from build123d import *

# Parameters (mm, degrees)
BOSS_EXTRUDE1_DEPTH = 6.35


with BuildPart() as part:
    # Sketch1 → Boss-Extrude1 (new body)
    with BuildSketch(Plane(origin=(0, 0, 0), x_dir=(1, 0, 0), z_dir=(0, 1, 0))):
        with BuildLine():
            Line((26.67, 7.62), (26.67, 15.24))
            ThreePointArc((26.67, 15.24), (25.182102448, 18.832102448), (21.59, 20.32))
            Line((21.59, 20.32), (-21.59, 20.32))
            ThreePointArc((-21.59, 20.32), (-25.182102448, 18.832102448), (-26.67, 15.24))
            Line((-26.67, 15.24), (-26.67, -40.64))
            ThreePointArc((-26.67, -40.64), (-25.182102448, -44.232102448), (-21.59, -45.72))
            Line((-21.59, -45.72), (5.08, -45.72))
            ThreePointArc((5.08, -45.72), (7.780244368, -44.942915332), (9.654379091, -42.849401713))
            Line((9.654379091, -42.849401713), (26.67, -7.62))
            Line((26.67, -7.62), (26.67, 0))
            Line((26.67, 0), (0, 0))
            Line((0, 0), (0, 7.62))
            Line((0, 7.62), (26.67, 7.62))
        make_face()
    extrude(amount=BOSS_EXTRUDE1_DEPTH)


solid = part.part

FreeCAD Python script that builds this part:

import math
import FreeCAD as App
import Part
import Sketcher

V = App.Vector
Q = App.Units.Quantity

doc = App.newDocument("Part")
params = doc.addObject("Spreadsheet::Sheet", "Params")
for row, (alias, value) in enumerate([
    ("sketch1_radius", "0.2 in"),
    ("sketch1_width", "1.7 in"),
    ("sketch1_height", "0.3 in"),
    ("sketch1_height2", "2.2 in"),
    ("sketch1_width2", "1.05 in"),
    ("pad1_length", "0.25 in"),
], start=1):
    params.set(f"A{row}", alias)
    params.set(f"B{row}", "=" + value)
    params.setAlias(f"B{row}", alias)

body = doc.addObject("PartDesign::Body", "Body")

sketch1 = doc.addObject("Sketcher::SketchObject", "Sketch")
body.addObject(sketch1)
sketch1.AttachmentSupport = (doc.XZ_Plane, [""])
sketch1.MapMode = "FlatFace"
sketch1.addGeometry([
    Part.LineSegment(V(27, -8, 0), V(27, -15, 0)),
    Part.ArcOfCircle(Part.Circle(V(22, -15, 0), V(0, 0, 1), 5), math.radians(-90), math.radians(0)),
    Part.LineSegment(V(22, -20, 0), V(-22, -20, 0)),
    Part.ArcOfCircle(Part.Circle(V(-22, -15, 0), V(0, 0, 1), 5), math.radians(-180), math.radians(-90)),
    Part.LineSegment(V(-27, -15, 0), V(-27, 41, 0)),
    Part.ArcOfCircle(Part.Circle(V(-22, 41, 0), V(0, 0, 1), 5), math.radians(90), math.radians(180)),
    Part.LineSegment(V(-22, 46, 0), V(5, 46, 0)),
    Part.ArcOfCircle(Part.Circle(V(5, 41, 0), V(0, 0, 1), 5), math.radians(26), math.radians(90)),
    Part.LineSegment(V(10, 43, 0), V(27, 8, 0)),
    Part.LineSegment(V(27, 8, 0), V(27, 0, 0)),
    Part.LineSegment(V(27, 0, 0), V(0, 0, 0)),
    Part.LineSegment(V(0, 0, 0), V(0, -8, 0)),
    Part.LineSegment(V(0, -8, 0), V(27, -8, 0)),
], False)
sketch1.addConstraint([
    Sketcher.Constraint("Tangent", 0, 2, 1, 2),
    Sketcher.Constraint("Tangent", 1, 1, 2, 1),
    Sketcher.Constraint("Tangent", 2, 2, 3, 2),
    Sketcher.Constraint("Tangent", 3, 1, 4, 1),
    Sketcher.Constraint("Tangent", 4, 2, 5, 2),
    Sketcher.Constraint("Tangent", 5, 1, 6, 1),
    Sketcher.Constraint("Tangent", 6, 2, 7, 2),
    Sketcher.Constraint("Tangent", 7, 1, 8, 1),
    Sketcher.Constraint("Coincident", 8, 2, 9, 1),
    Sketcher.Constraint("Coincident", 9, 2, 10, 1),
    Sketcher.Constraint("Coincident", 10, 2, 11, 1),
    Sketcher.Constraint("Coincident", 11, 2, 12, 1),
    Sketcher.Constraint("Coincident", 12, 2, 0, 1),
    Sketcher.Constraint("Vertical", 0),
    Sketcher.Constraint("Horizontal", 2),
    Sketcher.Constraint("Vertical", 4),
    Sketcher.Constraint("Horizontal", 6),
    Sketcher.Constraint("Vertical", 9),
    Sketcher.Constraint("Horizontal", 10),
    Sketcher.Constraint("Vertical", 11),
    Sketcher.Constraint("Horizontal", 12),
    Sketcher.Constraint("Coincident", 10, 2, -1, 1),
    Sketcher.Constraint("Equal", 1, 3),
    Sketcher.Constraint("Equal", 3, 5),
    Sketcher.Constraint("Equal", 5, 7),
    Sketcher.Constraint("Symmetric", 8, 2, 12, 2, -1),
    Sketcher.Constraint("Equal", 6, 10),
    Sketcher.Constraint("Equal", 0, 9),
    Sketcher.Constraint("Radius", 1, Q("0.2 in")),
    Sketcher.Constraint("DistanceX", 2, 2, 2, 1, Q("1.7 in")),
    Sketcher.Constraint("DistanceY", 0, 2, 0, 1, Q("0.3 in")),
    Sketcher.Constraint("DistanceY", 4, 1, 4, 2, Q("2.2 in")),
    Sketcher.Constraint("DistanceX", 6, 1, 6, 2, Q("1.05 in")),
])
sketch1.setExpression("Constraints[28]", "Params.sketch1_radius")
sketch1.setExpression("Constraints[29]", "Params.sketch1_width")
sketch1.setExpression("Constraints[30]", "Params.sketch1_height")
sketch1.setExpression("Constraints[31]", "Params.sketch1_height2")
sketch1.setExpression("Constraints[32]", "Params.sketch1_width2")
pad1 = doc.addObject("PartDesign::Pad", "Pad")
body.addObject(pad1)
pad1.Profile = sketch1
pad1.setExpression("Length", "Params.pad1_length")
pad1.Reversed = True

doc.recompute()
